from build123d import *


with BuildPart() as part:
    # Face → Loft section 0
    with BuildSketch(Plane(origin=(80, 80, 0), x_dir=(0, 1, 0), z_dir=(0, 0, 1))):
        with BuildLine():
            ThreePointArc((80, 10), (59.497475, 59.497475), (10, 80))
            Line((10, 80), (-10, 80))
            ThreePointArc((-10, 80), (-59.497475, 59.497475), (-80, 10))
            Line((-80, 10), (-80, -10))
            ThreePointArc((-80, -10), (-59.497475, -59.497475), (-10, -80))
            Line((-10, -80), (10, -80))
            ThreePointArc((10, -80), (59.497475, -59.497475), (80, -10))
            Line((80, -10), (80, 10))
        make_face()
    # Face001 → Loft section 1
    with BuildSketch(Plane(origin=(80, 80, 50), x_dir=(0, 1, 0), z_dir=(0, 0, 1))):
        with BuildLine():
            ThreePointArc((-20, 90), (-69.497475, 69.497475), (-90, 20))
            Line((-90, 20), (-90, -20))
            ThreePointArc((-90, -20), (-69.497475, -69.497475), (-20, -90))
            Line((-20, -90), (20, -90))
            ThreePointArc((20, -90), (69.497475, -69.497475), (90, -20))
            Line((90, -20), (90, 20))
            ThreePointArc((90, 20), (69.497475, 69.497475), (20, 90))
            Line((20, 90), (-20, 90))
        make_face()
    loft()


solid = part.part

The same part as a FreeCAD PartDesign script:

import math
import FreeCAD as App
import Part
import Sketcher

V = App.Vector

doc = App.newDocument("Part")
body = doc.addObject("PartDesign::Body", "Body")

sketch1 = body.newObject("Sketcher::SketchObject", "Sketch")
sketch1.AttachmentSupport = (doc.getObject("XY_Plane"), [""])
sketch1.MapMode = "FlatFace"
sketch1.addGeometry([
    Part.ArcOfCircle(Part.Circle(V(70, 90, 0), V(0, 0, 1), 70), math.radians(90), math.radians(180)),
    Part.LineSegment(V(0, 90, 0), V(0, 70, 0)),
    Part.ArcOfCircle(Part.Circle(V(70, 70, 0), V(0, 0, 1), 70), math.radians(180), math.radians(270)),
    Part.LineSegment(V(70, 0, 0), V(90, 0, 0)),
    Part.ArcOfCircle(Part.Circle(V(90, 70, 0), V(0, 0, 1), 70), math.radians(-90), math.radians(0)),
    Part.LineSegment(V(160, 70, 0), V(160, 90, 0)),
    Part.ArcOfCircle(Part.Circle(V(90, 90, 0), V(0, 0, 1), 70), math.radians(0), math.radians(90)),
    Part.LineSegment(V(90, 160, 0), V(70, 160, 0)),
], False)
sketch1.addConstraint([
    Sketcher.Constraint("Tangent", 0, 2, 1, 1),
    Sketcher.Constraint("Tangent", 1, 2, 2, 1),
    Sketcher.Constraint("Tangent", 2, 2, 3, 1),
    Sketcher.Constraint("Tangent", 3, 2, 4, 1),
    Sketcher.Constraint("Tangent", 4, 2, 5, 1),
    Sketcher.Constraint("Tangent", 5, 2, 6, 1),
    Sketcher.Constraint("Tangent", 6, 2, 7, 1),
    Sketcher.Constraint("Tangent", 7, 2, 0, 1),
    Sketcher.Constraint("Vertical", 1),
    Sketcher.Constraint("Horizontal", 3),
    Sketcher.Constraint("Vertical", 5),
    Sketcher.Constraint("Horizontal", 7),
    Sketcher.Constraint("Equal", 0, 2),
    Sketcher.Constraint("Equal", 2, 4),
    Sketcher.Constraint("Equal", 4, 6),
    Sketcher.Constraint("PointOnObject", 0, 2, -2),
    Sketcher.Constraint("PointOnObject", 2, 2, -1),
    Sketcher.Constraint("Equal", 7, 1),
    Sketcher.Constraint("Radius", 0, 69.999999),
    Sketcher.Constraint("DistanceX", 3, 1, 3, 2, 20.0),
])

sketch2 = body.newObject("Sketcher::SketchObject", "Sketch001")
sketch2.AttachmentSupport = (doc.getObject("XY_Plane"), [""])
sketch2.MapMode = "FlatFace"
sketch2.AttachmentOffset = App.Placement(V(0, 0, 50), App.Rotation())
sketch2.addGeometry([
    Part.ArcOfCircle(Part.Circle(V(60, 60, 0), V(0, 0, 1), 70), math.radians(180), math.radians(270)),
    Part.LineSegment(V(60, -10, 0), V(100, -10, 0)),
    Part.ArcOfCircle(Part.Circle(V(100, 60, 0), V(0, 0, 1), 70), math.radians(-90), math.radians(0)),
    Part.LineSegment(V(170, 60, 0), V(170, 100, 0)),
    Part.ArcOfCircle(Part.Circle(V(100, 100, 0), V(0, 0, 1), 70), math.radians(0), math.radians(90)),
    Part.LineSegment(V(100, 170, 0), V(60, 170, 0)),
    Part.ArcOfCircle(Part.Circle(V(60, 100, 0), V(0, 0, 1), 70), math.radians(90), math.radians(180)),
    Part.LineSegment(V(-10, 100, 0), V(-10, 60, 0)),
], False)
sketch2.addConstraint([
    Sketcher.Constraint("Tangent", 0, 2, 1, 1),
    Sketcher.Constraint("Tangent", 1, 2, 2, 1),
    Sketcher.Constraint("Tangent", 2, 2, 3, 1),
    Sketcher.Constraint("Tangent", 3, 2, 4, 1),
    Sketcher.Constraint("Tangent", 4, 2, 5, 1),
    Sketcher.Constraint("Tangent", 5, 2, 6, 1),
    Sketcher.Constraint("Tangent", 6, 2, 7, 1),
    Sketcher.Constraint("Tangent", 7, 2, 0, 1),
    Sketcher.Constraint("Horizontal", 1),
    Sketcher.Constraint("Vertical", 3),
    Sketcher.Constraint("Horizontal", 5),
    Sketcher.Constraint("Vertical", 7),
    Sketcher.Constraint("Equal", 0, 2),
    Sketcher.Constraint("Equal", 2, 4),
    Sketcher.Constraint("Equal", 4, 6),
    Sketcher.Constraint("Equal", 5, 3),
    Sketcher.Constraint("Radius", 0, 69.999999),
    Sketcher.Constraint("DistanceX", 1, 1, 1, 2, 40.0),
    Sketcher.Constraint("DistanceX", -1, 1, 0, 3, 59.999999),
    Sketcher.Constraint("DistanceY", -1, 1, 0, 3, 59.999999),
])

additiveloft = body.newObject("PartDesign::AdditiveLoft", "AdditiveLoft")
additiveloft.Profile = sketch1
additiveloft.Sections = [sketch2]

doc.recompute()
